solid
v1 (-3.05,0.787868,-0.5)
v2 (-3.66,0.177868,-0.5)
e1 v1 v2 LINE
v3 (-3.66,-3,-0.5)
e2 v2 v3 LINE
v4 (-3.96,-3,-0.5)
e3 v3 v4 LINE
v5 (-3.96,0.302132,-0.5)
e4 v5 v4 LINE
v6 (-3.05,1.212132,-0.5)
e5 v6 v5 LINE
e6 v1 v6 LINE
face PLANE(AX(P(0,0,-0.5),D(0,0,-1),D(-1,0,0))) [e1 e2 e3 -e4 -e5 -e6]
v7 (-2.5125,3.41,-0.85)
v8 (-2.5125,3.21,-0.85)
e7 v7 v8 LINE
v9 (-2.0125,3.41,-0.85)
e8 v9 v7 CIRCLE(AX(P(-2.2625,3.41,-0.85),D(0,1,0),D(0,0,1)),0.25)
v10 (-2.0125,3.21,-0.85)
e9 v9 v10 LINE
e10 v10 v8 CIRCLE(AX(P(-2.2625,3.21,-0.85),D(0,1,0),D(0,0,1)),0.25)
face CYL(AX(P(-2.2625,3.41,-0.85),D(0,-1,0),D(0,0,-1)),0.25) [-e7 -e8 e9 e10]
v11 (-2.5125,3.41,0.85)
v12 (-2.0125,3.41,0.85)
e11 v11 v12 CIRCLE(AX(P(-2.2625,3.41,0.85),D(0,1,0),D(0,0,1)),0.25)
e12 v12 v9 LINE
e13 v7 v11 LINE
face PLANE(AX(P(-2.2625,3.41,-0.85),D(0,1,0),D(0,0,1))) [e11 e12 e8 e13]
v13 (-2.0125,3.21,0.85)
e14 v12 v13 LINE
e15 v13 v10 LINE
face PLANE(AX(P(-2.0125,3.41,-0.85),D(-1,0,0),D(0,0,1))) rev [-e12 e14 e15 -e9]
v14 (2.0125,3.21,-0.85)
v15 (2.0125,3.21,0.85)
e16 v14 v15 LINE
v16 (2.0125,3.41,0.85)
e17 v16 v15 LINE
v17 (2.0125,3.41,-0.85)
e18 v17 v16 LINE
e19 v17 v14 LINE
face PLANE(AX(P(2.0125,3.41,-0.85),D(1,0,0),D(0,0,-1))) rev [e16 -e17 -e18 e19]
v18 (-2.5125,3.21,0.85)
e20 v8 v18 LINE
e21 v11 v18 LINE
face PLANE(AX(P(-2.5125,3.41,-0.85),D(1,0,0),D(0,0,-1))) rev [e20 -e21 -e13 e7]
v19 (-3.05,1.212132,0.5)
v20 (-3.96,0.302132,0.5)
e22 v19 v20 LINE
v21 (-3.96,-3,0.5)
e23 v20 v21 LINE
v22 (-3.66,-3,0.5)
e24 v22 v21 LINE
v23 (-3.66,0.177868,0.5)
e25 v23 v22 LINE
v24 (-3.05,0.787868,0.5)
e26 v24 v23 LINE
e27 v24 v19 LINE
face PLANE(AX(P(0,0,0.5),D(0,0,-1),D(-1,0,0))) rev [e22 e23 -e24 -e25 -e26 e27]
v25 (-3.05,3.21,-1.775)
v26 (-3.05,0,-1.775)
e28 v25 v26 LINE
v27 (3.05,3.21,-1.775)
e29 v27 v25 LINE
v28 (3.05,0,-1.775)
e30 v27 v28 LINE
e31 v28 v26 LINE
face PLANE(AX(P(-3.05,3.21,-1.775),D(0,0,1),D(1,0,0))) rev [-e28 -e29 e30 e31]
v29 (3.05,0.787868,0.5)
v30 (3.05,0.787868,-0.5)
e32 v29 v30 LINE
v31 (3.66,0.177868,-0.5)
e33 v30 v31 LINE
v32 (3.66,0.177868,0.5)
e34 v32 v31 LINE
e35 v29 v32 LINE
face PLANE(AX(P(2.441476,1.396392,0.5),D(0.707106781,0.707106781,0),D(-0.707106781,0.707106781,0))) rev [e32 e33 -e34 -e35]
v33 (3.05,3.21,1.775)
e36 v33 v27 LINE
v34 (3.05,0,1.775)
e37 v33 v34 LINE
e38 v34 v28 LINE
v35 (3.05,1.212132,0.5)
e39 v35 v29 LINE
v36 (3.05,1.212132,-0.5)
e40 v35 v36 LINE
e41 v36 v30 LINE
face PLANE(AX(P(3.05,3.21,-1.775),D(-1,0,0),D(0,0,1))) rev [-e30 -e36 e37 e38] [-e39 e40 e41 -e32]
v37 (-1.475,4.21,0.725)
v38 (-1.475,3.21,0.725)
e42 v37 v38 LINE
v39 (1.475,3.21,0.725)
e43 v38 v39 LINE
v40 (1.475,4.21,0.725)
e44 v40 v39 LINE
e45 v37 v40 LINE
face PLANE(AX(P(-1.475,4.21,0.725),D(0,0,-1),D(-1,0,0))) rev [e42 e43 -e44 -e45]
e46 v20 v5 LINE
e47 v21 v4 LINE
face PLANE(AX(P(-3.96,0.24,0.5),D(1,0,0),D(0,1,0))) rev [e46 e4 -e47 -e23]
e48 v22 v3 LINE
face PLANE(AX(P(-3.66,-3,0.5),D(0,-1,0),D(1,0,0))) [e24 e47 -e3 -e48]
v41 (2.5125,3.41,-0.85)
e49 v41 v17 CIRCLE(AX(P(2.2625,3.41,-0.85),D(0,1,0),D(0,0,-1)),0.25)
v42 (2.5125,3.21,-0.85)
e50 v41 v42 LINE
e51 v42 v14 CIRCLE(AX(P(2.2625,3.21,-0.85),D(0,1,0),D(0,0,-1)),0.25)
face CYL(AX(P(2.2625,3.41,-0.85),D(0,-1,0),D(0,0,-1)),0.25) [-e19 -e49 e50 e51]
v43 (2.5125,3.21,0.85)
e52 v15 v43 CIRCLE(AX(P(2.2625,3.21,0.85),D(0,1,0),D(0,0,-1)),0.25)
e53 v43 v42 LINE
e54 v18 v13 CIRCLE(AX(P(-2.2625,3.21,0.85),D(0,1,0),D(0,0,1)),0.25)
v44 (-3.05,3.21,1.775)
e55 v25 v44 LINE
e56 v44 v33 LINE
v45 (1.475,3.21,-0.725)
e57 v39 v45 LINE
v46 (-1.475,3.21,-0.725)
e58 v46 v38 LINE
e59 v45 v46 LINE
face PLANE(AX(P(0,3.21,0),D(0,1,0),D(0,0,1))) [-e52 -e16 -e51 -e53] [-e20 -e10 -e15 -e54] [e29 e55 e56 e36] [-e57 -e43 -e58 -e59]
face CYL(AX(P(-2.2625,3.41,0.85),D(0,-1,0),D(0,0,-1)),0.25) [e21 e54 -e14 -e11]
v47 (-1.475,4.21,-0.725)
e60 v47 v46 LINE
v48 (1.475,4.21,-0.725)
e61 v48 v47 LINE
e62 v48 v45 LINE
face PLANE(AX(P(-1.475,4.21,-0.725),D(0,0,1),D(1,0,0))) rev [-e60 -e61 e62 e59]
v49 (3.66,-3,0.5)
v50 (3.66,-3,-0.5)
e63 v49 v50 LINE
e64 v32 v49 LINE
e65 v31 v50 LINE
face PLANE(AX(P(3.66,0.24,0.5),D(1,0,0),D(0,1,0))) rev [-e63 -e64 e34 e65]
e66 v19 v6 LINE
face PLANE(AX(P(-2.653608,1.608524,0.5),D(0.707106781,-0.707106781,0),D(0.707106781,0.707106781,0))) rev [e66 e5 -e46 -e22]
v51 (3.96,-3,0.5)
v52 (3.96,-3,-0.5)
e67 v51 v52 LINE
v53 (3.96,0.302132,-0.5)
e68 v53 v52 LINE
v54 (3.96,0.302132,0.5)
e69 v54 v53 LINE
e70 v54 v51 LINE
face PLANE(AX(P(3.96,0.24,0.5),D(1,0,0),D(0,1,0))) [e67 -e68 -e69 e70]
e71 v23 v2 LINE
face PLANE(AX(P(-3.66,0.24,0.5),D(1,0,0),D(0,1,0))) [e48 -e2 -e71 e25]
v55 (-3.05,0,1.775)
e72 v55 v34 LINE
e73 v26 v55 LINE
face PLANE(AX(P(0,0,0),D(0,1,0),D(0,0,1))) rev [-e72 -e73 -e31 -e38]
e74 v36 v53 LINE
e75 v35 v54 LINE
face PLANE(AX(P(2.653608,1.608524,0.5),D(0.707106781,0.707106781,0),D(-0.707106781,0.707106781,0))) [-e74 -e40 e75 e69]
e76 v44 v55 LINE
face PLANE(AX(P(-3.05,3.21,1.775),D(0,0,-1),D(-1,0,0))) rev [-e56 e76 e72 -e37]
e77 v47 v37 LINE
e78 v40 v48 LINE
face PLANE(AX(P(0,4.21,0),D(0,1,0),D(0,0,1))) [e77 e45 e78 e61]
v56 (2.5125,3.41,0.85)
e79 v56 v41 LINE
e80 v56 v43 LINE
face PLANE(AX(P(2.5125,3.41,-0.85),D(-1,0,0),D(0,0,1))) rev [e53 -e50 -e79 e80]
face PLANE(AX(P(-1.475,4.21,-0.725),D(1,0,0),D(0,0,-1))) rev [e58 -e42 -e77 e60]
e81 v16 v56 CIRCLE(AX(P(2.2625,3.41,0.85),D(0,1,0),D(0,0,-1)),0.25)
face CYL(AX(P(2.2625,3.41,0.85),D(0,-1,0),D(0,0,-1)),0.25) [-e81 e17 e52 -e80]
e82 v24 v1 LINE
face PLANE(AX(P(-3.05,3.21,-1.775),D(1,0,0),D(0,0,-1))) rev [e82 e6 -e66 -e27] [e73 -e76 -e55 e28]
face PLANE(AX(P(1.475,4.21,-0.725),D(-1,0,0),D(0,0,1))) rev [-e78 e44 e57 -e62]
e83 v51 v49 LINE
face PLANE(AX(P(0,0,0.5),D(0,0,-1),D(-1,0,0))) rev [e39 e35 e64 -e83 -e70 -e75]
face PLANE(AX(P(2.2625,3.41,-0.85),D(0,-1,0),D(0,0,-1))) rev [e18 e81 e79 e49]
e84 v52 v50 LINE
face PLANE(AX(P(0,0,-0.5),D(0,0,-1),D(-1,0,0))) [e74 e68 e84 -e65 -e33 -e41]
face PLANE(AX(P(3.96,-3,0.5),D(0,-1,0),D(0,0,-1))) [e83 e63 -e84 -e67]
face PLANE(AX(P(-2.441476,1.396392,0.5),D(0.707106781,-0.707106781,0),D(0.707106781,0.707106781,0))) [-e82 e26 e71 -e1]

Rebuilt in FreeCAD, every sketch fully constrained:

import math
import FreeCAD as App
import Part
import Sketcher

V = App.Vector

doc = App.newDocument("Part")
params = doc.addObject("Spreadsheet::Sheet", "Params")
for row, (alias, value) in enumerate([
    ("sketch1_width", "6.1 mm"),
    ("sketch1_height", "3.55 mm"),
    ("pad1_length", "3.21 mm"),
    ("sketch2_width", "2.95 mm"),
    ("sketch2_height", "1.45 mm"),
    ("pad2_length", "1 mm"),
    ("sketch3_radius", "0.25 mm"),
    ("sketch3_height", "1.7 mm"),
    ("pad3_length", "0.2 mm"),
    ("sketch4_width", "0.3 mm"),
    ("sketch4_length", "0.3 mm"),
    ("pad4_length", "1 mm"),
], start=1):
    params.set(f"A{row}", alias)
    params.set(f"B{row}", "=" + value)
    params.setAlias(f"B{row}", alias)

body = doc.addObject("PartDesign::Body", "Body")

# Sketch on XZ plane
sketch1 = body.newObject("Sketcher::SketchObject", "Sketch")
sketch1.AttachmentSupport = (doc.getObject("XZ_Plane"), [""])
sketch1.MapMode = "FlatFace"
sketch1.addGeometry(Part.LineSegment(V(-3.05, -1.775, 0), V(-3.05, 1.775, 0)), False)
sketch1.addGeometry(Part.LineSegment(V(-3.05, 1.775, 0), V(3.05, 1.775, 0)), False)
sketch1.addGeometry(Part.LineSegment(V(3.05, 1.775, 0), V(3.05, -1.775, 0)), False)
sketch1.addGeometry(Part.LineSegment(V(3.05, -1.775, 0), V(-3.05, -1.775, 0)), False)
sketch1.addConstraint(Sketcher.Constraint("Coincident", 0, 2, 1, 1))
sketch1.addConstraint(Sketcher.Constraint("Coincident", 1, 2, 2, 1))
sketch1.addConstraint(Sketcher.Constraint("Coincident", 2, 2, 3, 1))
sketch1.addConstraint(Sketcher.Constraint("Coincident", 3, 2, 0, 1))
sketch1.addConstraint(Sketcher.Constraint("Vertical", 0))
sketch1.addConstraint(Sketcher.Constraint("Horizontal", 1))
sketch1.addConstraint(Sketcher.Constraint("Vertical", 2))
sketch1.addConstraint(Sketcher.Constraint("Horizontal", 3))
sketch1.addConstraint(Sketcher.Constraint("Symmetric", 0, 2, 2, 2, -1, 1))
sketch1.addConstraint(Sketcher.Constraint("DistanceX", 1, 1, 1, 2, 6.1))
sketch1.addConstraint(Sketcher.Constraint("DistanceY", 0, 1, 0, 2, 3.55))
sketch1.setExpression("Constraints[9]", "Params.sketch1_width")
sketch1.setExpression("Constraints[10]", "Params.sketch1_height")
pad1 = body.newObject("PartDesign::Pad", "Pad")
pad1.Profile = sketch1
pad1.setExpression("Length", "Params.pad1_length")
pad1.Reversed = True

# Sketch on XZ plane
sketch2 = body.newObject("Sketcher::SketchObject", "Sketch001")
sketch2.AttachmentSupport = (doc.getObject("XZ_Plane"), [""])
sketch2.MapMode = "FlatFace"
sketch2.AttachmentOffset = App.Placement(V(0, 0, -3.21), App.Rotation())
sketch2.addGeometry(Part.LineSegment(V(-1.475, -0.725, 0), V(-1.475, 0.725, 0)), False)
sketch2.addGeometry(Part.LineSegment(V(-1.475, 0.725, 0), V(1.475, 0.725, 0)), False)
sketch2.addGeometry(Part.LineSegment(V(1.475, 0.725, 0), V(1.475, -0.725, 0)), False)
sketch2.addGeometry(Part.LineSegment(V(1.475, -0.725, 0), V(-1.475, -0.725, 0)), False)
sketch2.addConstraint(Sketcher.Constraint("Coincident", 0, 2, 1, 1))
sketch2.addConstraint(Sketcher.Constraint("Coincident", 1, 2, 2, 1))
sketch2.addConstraint(Sketcher.Constraint("Coincident", 2, 2, 3, 1))
sketch2.addConstraint(Sketcher.Constraint("Coincident", 3, 2, 0, 1))
sketch2.addConstraint(Sketcher.Constraint("Vertical", 0))
sketch2.addConstraint(Sketcher.Constraint("Horizontal", 1))
sketch2.addConstraint(Sketcher.Constraint("Vertical", 2))
sketch2.addConstraint(Sketcher.Constraint("Horizontal", 3))
sketch2.addConstraint(Sketcher.Constraint("Symmetric", 0, 2, 2, 2, -1, 1))
sketch2.addConstraint(Sketcher.Constraint("DistanceX", 1, 1, 1, 2, 2.95))
sketch2.addConstraint(Sketcher.Constraint("DistanceY", 0, 1, 0, 2, 1.45))
sketch2.setExpression("Constraints[9]", "Params.sketch2_width")
sketch2.setExpression("Constraints[10]", "Params.sketch2_height")
pad2 = body.newObject("PartDesign::Pad", "Pad001")
pad2.Profile = sketch2
pad2.setExpression("Length", "Params.pad2_length")
pad2.Reversed = True

# Sketch on XZ plane
sketch3 = body.newObject("Sketcher::SketchObject", "Sketch002")
sketch3.AttachmentSupport = (doc.getObject("XZ_Plane"), [""])
sketch3.MapMode = "FlatFace"
sketch3.AttachmentOffset = App.Placement(V(0, 0, -3.21), App.Rotation())
sketch3.addGeometry(Part.LineSegment(V(-2.0125, 0.85, 0), V(-2.0125, -0.85, 0)), False)
sketch3.addGeometry(Part.ArcOfCircle(Part.Circle(V(-2.2625, -0.85, 0), V(0, 0, 1), 0.25), math.radians(180), math.radians(360)), False)
sketch3.addGeometry(Part.LineSegment(V(-2.5125, -0.85, 0), V(-2.5125, 0.85, 0)), False)
sketch3.addGeometry(Part.ArcOfCircle(Part.Circle(V(-2.2625, 0.85, 0), V(0, 0, 1), 0.25), math.radians(0), math.radians(180)), False)
sketch3.addGeometry(Part.LineSegment(V(2.0125, -0.85, 0), V(2.0125, 0.85, 0)), False)
sketch3.addGeometry(Part.ArcOfCircle(Part.Circle(V(2.2625, 0.85, 0), V(0, 0, 1), 0.25), math.radians(0), math.radians(180)), False)
sketch3.addGeometry(Part.LineSegment(V(2.5125, 0.85, 0), V(2.5125, -0.85, 0)), False)
sketch3.addGeometry(Part.ArcOfCircle(Part.Circle(V(2.2625, -0.85, 0), V(0, 0, 1), 0.25), math.radians(180), math.radians(360)), False)
sketch3.addConstraint(Sketcher.Constraint("Tangent", 0, 2, 1, 2))
sketch3.addConstraint(Sketcher.Constraint("Tangent", 1, 1, 2, 1))
sketch3.addConstraint(Sketcher.Constraint("Tangent", 2, 2, 3, 2))
sketch3.addConstraint(Sketcher.Constraint("Tangent", 3, 1, 0, 1))
sketch3.addConstraint(Sketcher.Constraint("Tangent", 4, 2, 5, 2))
sketch3.addConstraint(Sketcher.Constraint("Tangent", 5, 1, 6, 1))
sketch3.addConstraint(Sketcher.Constraint("Tangent", 6, 2, 7, 2))
sketch3.addConstraint(Sketcher.Constraint("Tangent", 7, 1, 4, 1))
sketch3.addConstraint(Sketcher.Constraint("Vertical", 0))
sketch3.addConstraint(Sketcher.Constraint("Vertical", 2))
sketch3.addConstraint(Sketcher.Constraint("Vertical", 4))
sketch3.addConstraint(Sketcher.Constraint("Vertical", 6))
sketch3.addConstraint(Sketcher.Constraint("Equal", 3, 5))
sketch3.addConstraint(Sketcher.Constraint("Symmetric", 1, 3, 5, 3, -1, 1))
sketch3.addConstraint(Sketcher.Constraint("Horizontal", 3, 3, 5, 3))
sketch3.addConstraint(Sketcher.Constraint("Horizontal", 1, 3, 7, 3))
sketch3.addConstraint(Sketcher.Constraint("Radius", 1, 0.25))
sketch3.addConstraint(Sketcher.Constraint("DistanceY", 0, 2, 0, 1, 1.7))
sketch3.addConstraint(Sketcher.Constraint("DistanceX", 3, 3, 5, 3, 4.525))
sketch3.setExpression("Constraints[16]", "Params.sketch3_radius")
sketch3.setExpression("Constraints[17]", "Params.sketch3_height")
pad3 = body.newObject("PartDesign::Pad", "Pad002")
pad3.Profile = sketch3
pad3.setExpression("Length", "Params.pad3_length")
pad3.Reversed = True

# Sketch on XY plane
sketch4 = body.newObject("Sketcher::SketchObject", "Sketch003")
sketch4.AttachmentSupport = (doc.getObject("XY_Plane"), [""])
sketch4.MapMode = "FlatFace"
sketch4.addGeometry(Part.LineSegment(V(-2.653608, 1.608524, 0), V(-3.96, 0.302132, 0)), False)
sketch4.addGeometry(Part.LineSegment(V(-3.96, 0.302132, 0), V(-3.96, -3, 0)), False)
sketch4.addGeometry(Part.LineSegment(V(-3.96, -3, 0), V(-3.66, -3, 0)), False)
sketch4.addGeometry(Part.LineSegment(V(-3.66, -3, 0), V(-3.66, 0.177868, 0)), False)
sketch4.addGeometry(Part.LineSegment(V(-3.66, 0.177868, 0), V(-2.441476, 1.396392, 0)), False)
sketch4.addGeometry(Part.LineSegment(V(-2.441476, 1.396392, 0), V(-2.653608, 1.608524, 0)), False)
sketch4.addGeometry(Part.LineSegment(V(2.441476, 1.396392, 0), V(3.66, 0.177868, 0)), False)
sketch4.addGeometry(Part.LineSegment(V(3.66, 0.177868, 0), V(3.66, -3, 0)), False)
sketch4.addGeometry(Part.LineSegment(V(3.66, -3, 0), V(3.96, -3, 0)), False)
sketch4.addGeometry(Part.LineSegment(V(3.96, -3, 0), V(3.96, 0.302132, 0)), False)
sketch4.addGeometry(Part.LineSegment(V(3.96, 0.302132, 0), V(2.653608, 1.608524, 0)), False)
sketch4.addGeometry(Part.LineSegment(V(2.653608, 1.608524, 0), V(2.441476, 1.396392, 0)), False)
sketch4.addConstraint(Sketcher.Constraint("Coincident", 0, 2, 1, 1))
sketch4.addConstraint(Sketcher.Constraint("Coincident", 1, 2, 2, 1))
sketch4.addConstraint(Sketcher.Constraint("Coincident", 2, 2, 3, 1))
sketch4.addConstraint(Sketcher.Constraint("Coincident", 3, 2, 4, 1))
sketch4.addConstraint(Sketcher.Constraint("Coincident", 4, 2, 5, 1))
sketch4.addConstraint(Sketcher.Constraint("Coincident", 5, 2, 0, 1))
sketch4.addConstraint(Sketcher.Constraint("Coincident", 6, 2, 7, 1))
sketch4.addConstraint(Sketcher.Constraint("Coincident", 7, 2, 8, 1))
sketch4.addConstraint(Sketcher.Constraint("Coincident", 8, 2, 9, 1))
sketch4.addConstraint(Sketcher.Constraint("Coincident", 9, 2, 10, 1))
sketch4.addConstraint(Sketcher.Constraint("Coincident", 10, 2, 11, 1))
sketch4.addConstraint(Sketcher.Constraint("Coincident", 11, 2, 6, 1))
sketch4.addConstraint(Sketcher.Constraint("Vertical", 1))
sketch4.addConstraint(Sketcher.Constraint("Horizontal", 2))
sketch4.addConstraint(Sketcher.Constraint("Vertical", 3))
sketch4.addConstraint(Sketcher.Constraint("Vertical", 7))
sketch4.addConstraint(Sketcher.Constraint("Horizontal", 8))
sketch4.addConstraint(Sketcher.Constraint("Vertical", 9))
sketch4.addConstraint(Sketcher.Constraint("Symmetric", 3, 2, 6, 2, -2))
sketch4.addConstraint(Sketcher.Constraint("Symmetric", 1, 2, 8, 2, -2))
sketch4.addConstraint(Sketcher.Constraint("Symmetric", 5, 2, 10, 2, -2))
sketch4.addConstraint(Sketcher.Constraint("Symmetric", 4, 2, 11, 2, -2))
sketch4.addConstraint(Sketcher.Constraint("Parallel", 0, 4))
sketch4.addConstraint(Sketcher.Constraint("Perpendicular", 4, 5))
sketch4.addConstraint(Sketcher.Constraint("Parallel", 5, 6))
sketch4.addConstraint(Sketcher.Constraint("Parallel", 6, 10))
sketch4.addConstraint(Sketcher.Constraint("DistanceX", 2, 1, 2, 2, 0.3))
sketch4.addConstraint(Sketcher.Constraint("DistanceY", 1, 2, -1, 1, 3.0))
sketch4.addConstraint(Sketcher.Constraint("Distance", 5, 0.3))
sketch4.addConstraint(Sketcher.Constraint("DistanceX", 0, 2, -1, 1, 3.96))
sketch4.addConstraint(Sketcher.Constraint("DistanceY", 1, 2, 1, 1, 3.302132))
sketch4.addConstraint(Sketcher.Constraint("DistanceY", -1, 1, 4, 2, 1.396392))
sketch4.setExpression("Constraints[26]", "Params.sketch4_width")
sketch4.setExpression("Constraints[28]", "Params.sketch4_length")
pad4 = body.newObject("PartDesign::Pad", "Pad003")
pad4.Profile = sketch4
pad4.setExpression("Length", "Params.pad4_length")
pad4.Midplane = True

doc.recompute()
